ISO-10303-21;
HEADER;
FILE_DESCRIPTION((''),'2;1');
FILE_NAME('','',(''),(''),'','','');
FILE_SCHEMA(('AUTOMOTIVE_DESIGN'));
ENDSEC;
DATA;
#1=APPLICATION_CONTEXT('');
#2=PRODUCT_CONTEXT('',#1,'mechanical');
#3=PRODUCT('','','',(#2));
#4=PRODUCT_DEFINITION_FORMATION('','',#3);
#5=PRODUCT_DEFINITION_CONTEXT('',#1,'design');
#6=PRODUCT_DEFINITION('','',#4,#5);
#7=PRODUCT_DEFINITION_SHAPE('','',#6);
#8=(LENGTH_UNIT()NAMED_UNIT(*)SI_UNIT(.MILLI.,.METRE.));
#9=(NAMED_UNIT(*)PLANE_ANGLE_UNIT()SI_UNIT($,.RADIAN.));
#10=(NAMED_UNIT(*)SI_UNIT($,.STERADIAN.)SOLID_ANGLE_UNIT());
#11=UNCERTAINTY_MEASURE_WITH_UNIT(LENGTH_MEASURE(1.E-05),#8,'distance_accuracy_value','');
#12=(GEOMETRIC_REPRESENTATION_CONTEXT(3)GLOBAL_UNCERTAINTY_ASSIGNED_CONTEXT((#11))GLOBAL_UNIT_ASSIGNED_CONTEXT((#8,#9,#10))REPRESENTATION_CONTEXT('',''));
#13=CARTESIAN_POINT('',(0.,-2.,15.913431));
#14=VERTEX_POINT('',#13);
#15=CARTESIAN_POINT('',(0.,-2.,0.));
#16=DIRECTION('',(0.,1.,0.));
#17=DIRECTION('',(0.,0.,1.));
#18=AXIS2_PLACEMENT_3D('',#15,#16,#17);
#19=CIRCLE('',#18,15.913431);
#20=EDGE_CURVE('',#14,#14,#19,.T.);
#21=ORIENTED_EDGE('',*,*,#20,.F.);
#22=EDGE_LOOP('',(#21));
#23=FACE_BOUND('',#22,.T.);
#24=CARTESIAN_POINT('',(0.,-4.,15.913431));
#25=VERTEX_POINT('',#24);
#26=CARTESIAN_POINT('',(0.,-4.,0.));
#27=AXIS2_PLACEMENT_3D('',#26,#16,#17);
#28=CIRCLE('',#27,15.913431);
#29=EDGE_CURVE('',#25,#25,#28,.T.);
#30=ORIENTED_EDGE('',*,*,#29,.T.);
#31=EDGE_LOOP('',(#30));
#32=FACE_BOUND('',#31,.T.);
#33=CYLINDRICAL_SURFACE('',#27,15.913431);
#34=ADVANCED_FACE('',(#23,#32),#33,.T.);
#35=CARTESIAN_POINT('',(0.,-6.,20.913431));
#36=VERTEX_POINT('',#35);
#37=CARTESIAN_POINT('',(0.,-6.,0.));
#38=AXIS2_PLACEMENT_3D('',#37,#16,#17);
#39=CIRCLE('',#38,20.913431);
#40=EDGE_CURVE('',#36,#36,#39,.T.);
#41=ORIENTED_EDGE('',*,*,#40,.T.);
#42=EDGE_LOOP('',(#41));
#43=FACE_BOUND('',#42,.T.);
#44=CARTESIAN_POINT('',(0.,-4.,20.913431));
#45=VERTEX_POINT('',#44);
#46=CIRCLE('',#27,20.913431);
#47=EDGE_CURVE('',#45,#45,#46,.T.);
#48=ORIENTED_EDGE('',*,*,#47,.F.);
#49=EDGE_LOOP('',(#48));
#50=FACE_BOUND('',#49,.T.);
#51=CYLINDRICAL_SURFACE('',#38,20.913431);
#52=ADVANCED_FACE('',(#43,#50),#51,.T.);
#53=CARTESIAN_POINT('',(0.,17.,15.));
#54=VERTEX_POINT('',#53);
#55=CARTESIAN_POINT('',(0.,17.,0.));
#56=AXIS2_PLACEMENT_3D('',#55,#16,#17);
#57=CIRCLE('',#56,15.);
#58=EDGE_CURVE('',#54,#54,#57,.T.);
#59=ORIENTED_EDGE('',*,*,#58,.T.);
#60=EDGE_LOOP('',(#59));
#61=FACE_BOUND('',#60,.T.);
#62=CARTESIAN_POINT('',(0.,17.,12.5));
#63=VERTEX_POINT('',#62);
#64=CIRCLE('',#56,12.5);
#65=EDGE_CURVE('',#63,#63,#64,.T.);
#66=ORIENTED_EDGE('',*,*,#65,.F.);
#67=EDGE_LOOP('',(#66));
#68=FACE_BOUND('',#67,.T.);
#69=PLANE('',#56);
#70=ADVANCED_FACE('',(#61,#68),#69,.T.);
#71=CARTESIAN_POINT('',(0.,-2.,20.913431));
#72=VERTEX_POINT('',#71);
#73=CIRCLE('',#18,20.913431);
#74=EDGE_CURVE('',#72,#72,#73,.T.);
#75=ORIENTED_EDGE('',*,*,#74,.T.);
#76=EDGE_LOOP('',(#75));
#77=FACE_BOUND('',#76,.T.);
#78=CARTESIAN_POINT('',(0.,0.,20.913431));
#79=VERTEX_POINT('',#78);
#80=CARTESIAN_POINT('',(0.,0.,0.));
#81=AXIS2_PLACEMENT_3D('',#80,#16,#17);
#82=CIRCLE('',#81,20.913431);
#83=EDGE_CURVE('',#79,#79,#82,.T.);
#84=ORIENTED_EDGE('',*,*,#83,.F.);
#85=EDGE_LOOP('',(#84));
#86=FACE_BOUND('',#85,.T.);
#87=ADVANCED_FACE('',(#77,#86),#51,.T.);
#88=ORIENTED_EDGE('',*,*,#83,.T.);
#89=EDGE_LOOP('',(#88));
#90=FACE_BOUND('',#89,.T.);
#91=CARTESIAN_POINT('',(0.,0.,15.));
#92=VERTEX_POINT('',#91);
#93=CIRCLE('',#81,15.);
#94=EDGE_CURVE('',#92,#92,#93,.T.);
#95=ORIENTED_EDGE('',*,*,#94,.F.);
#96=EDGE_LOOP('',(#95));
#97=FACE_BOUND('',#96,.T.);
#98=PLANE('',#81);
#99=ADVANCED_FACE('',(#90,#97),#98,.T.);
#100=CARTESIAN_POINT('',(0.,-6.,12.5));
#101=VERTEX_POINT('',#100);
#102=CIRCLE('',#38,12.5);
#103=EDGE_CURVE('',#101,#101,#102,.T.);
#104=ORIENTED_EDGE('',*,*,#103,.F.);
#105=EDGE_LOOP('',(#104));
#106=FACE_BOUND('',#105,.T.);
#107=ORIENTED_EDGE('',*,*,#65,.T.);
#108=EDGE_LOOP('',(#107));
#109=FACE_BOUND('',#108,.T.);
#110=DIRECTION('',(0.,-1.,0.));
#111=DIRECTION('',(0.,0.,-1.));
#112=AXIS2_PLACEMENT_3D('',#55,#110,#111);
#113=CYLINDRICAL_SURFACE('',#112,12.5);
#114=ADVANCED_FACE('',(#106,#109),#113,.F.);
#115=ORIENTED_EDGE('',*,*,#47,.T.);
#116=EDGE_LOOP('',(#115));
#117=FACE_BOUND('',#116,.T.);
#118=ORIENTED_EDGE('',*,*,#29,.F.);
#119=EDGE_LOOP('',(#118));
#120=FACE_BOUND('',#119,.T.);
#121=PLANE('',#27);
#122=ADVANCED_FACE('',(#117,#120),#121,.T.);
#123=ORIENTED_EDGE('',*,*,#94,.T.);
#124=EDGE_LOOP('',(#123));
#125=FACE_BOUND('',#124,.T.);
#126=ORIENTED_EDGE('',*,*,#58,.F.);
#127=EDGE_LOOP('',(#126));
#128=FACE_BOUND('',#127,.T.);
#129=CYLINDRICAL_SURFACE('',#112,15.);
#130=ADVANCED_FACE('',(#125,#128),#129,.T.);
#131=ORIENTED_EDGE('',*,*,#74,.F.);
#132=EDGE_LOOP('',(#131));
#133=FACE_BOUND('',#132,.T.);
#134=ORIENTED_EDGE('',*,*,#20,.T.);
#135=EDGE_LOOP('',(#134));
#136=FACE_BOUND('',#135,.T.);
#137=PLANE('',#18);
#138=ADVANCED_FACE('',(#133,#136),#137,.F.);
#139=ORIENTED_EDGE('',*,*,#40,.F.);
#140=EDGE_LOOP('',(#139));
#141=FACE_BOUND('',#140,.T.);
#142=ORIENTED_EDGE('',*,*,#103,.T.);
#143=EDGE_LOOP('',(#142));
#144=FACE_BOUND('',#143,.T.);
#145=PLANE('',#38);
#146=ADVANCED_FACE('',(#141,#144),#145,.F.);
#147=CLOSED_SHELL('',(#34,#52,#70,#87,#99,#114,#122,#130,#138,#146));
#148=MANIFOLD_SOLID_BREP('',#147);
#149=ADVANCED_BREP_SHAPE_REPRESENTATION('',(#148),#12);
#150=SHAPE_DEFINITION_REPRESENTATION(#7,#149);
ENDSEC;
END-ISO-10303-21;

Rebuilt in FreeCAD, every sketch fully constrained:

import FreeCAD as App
import Part
import Sketcher

V = App.Vector

doc = App.newDocument("Part")
body = doc.addObject("PartDesign::Body", "Body")

# Sketch on XZ plane
sketch1 = body.newObject("Sketcher::SketchObject", "Sketch")
sketch1.AttachmentSupport = (doc.getObject("XZ_Plane"), [""])
sketch1.MapMode = "FlatFace"
sketch1.addGeometry(Part.Circle(V(0, 0, 0), V(0, 0, 1), 15), False)
sketch1.addGeometry(Part.Circle(V(0, 0, 0), V(0, 0, 1), 12), False)
sketch1.addConstraint(Sketcher.Constraint("Coincident", 0, 3, -1, 1))
sketch1.addConstraint(Sketcher.Constraint("Coincident", 1, 3, -1, 1))
sketch1.addConstraint(Sketcher.Constraint("Diameter", 0, 30.0))
sketch1.addConstraint(Sketcher.Constraint("Diameter", 1, 25.0))
pad1 = body.newObject("PartDesign::Pad", "Pad")
pad1.Profile = sketch1
pad1.Length = 17
pad1.Reversed = True

# Sketch on XZ plane
sketch2 = body.newObject("Sketcher::SketchObject", "Sketch001")
sketch2.AttachmentSupport = (doc.getObject("XZ_Plane"), [""])
sketch2.MapMode = "FlatFace"
sketch2.AttachmentOffset = App.Placement(V(0, 0, 6), App.Rotation())
sketch2.addGeometry(Part.Circle(V(0, 0, 0), V(0, 0, 1), 21), False)
sketch2.addGeometry(Part.Circle(V(0, 0, 0), V(0, 0, 1), 12), False)
sketch2.addConstraint(Sketcher.Constraint("Coincident", 0, 3, -1, 1))
sketch2.addConstraint(Sketcher.Constraint("Coincident", 1, 3, -1, 1))
sketch2.addConstraint(Sketcher.Constraint("Diameter", 1, 25.0))
sketch2.addConstraint(Sketcher.Constraint("Diameter", 0, 41.826862))
pad2 = body.newObject("PartDesign::Pad", "Pad001")
pad2.Profile = sketch2
pad2.Length = 6
pad2.Reversed = True

# Sketch on XZ plane
sketch3 = body.newObject("Sketcher::SketchObject", "Sketch002")
sketch3.AttachmentSupport = (doc.getObject("XZ_Plane"), [""])
sketch3.MapMode = "FlatFace"
sketch3.AttachmentOffset = App.Placement(V(0, 0, 4), App.Rotation())
sketch3.addGeometry(Part.Circle(V(0, 0, 0), V(0, 0, 1), 21), False)
sketch3.addGeometry(Part.Circle(V(0, 0, 0), V(0, 0, 1), 16), False)
sketch3.addConstraint(Sketcher.Constraint("Coincident", 0, 3, -1, 1))
sketch3.addConstraint(Sketcher.Constraint("Coincident", 1, 3, -1, 1))
sketch3.addConstraint(Sketcher.Constraint("Diameter", 0, 41.826862))
sketch3.addConstraint(Sketcher.Constraint("Diameter", 1, 31.826862))
pocket1 = body.newObject("PartDesign::Pocket", "Pocket")
pocket1.Profile = sketch3
pocket1.Length = 2

doc.recompute()
